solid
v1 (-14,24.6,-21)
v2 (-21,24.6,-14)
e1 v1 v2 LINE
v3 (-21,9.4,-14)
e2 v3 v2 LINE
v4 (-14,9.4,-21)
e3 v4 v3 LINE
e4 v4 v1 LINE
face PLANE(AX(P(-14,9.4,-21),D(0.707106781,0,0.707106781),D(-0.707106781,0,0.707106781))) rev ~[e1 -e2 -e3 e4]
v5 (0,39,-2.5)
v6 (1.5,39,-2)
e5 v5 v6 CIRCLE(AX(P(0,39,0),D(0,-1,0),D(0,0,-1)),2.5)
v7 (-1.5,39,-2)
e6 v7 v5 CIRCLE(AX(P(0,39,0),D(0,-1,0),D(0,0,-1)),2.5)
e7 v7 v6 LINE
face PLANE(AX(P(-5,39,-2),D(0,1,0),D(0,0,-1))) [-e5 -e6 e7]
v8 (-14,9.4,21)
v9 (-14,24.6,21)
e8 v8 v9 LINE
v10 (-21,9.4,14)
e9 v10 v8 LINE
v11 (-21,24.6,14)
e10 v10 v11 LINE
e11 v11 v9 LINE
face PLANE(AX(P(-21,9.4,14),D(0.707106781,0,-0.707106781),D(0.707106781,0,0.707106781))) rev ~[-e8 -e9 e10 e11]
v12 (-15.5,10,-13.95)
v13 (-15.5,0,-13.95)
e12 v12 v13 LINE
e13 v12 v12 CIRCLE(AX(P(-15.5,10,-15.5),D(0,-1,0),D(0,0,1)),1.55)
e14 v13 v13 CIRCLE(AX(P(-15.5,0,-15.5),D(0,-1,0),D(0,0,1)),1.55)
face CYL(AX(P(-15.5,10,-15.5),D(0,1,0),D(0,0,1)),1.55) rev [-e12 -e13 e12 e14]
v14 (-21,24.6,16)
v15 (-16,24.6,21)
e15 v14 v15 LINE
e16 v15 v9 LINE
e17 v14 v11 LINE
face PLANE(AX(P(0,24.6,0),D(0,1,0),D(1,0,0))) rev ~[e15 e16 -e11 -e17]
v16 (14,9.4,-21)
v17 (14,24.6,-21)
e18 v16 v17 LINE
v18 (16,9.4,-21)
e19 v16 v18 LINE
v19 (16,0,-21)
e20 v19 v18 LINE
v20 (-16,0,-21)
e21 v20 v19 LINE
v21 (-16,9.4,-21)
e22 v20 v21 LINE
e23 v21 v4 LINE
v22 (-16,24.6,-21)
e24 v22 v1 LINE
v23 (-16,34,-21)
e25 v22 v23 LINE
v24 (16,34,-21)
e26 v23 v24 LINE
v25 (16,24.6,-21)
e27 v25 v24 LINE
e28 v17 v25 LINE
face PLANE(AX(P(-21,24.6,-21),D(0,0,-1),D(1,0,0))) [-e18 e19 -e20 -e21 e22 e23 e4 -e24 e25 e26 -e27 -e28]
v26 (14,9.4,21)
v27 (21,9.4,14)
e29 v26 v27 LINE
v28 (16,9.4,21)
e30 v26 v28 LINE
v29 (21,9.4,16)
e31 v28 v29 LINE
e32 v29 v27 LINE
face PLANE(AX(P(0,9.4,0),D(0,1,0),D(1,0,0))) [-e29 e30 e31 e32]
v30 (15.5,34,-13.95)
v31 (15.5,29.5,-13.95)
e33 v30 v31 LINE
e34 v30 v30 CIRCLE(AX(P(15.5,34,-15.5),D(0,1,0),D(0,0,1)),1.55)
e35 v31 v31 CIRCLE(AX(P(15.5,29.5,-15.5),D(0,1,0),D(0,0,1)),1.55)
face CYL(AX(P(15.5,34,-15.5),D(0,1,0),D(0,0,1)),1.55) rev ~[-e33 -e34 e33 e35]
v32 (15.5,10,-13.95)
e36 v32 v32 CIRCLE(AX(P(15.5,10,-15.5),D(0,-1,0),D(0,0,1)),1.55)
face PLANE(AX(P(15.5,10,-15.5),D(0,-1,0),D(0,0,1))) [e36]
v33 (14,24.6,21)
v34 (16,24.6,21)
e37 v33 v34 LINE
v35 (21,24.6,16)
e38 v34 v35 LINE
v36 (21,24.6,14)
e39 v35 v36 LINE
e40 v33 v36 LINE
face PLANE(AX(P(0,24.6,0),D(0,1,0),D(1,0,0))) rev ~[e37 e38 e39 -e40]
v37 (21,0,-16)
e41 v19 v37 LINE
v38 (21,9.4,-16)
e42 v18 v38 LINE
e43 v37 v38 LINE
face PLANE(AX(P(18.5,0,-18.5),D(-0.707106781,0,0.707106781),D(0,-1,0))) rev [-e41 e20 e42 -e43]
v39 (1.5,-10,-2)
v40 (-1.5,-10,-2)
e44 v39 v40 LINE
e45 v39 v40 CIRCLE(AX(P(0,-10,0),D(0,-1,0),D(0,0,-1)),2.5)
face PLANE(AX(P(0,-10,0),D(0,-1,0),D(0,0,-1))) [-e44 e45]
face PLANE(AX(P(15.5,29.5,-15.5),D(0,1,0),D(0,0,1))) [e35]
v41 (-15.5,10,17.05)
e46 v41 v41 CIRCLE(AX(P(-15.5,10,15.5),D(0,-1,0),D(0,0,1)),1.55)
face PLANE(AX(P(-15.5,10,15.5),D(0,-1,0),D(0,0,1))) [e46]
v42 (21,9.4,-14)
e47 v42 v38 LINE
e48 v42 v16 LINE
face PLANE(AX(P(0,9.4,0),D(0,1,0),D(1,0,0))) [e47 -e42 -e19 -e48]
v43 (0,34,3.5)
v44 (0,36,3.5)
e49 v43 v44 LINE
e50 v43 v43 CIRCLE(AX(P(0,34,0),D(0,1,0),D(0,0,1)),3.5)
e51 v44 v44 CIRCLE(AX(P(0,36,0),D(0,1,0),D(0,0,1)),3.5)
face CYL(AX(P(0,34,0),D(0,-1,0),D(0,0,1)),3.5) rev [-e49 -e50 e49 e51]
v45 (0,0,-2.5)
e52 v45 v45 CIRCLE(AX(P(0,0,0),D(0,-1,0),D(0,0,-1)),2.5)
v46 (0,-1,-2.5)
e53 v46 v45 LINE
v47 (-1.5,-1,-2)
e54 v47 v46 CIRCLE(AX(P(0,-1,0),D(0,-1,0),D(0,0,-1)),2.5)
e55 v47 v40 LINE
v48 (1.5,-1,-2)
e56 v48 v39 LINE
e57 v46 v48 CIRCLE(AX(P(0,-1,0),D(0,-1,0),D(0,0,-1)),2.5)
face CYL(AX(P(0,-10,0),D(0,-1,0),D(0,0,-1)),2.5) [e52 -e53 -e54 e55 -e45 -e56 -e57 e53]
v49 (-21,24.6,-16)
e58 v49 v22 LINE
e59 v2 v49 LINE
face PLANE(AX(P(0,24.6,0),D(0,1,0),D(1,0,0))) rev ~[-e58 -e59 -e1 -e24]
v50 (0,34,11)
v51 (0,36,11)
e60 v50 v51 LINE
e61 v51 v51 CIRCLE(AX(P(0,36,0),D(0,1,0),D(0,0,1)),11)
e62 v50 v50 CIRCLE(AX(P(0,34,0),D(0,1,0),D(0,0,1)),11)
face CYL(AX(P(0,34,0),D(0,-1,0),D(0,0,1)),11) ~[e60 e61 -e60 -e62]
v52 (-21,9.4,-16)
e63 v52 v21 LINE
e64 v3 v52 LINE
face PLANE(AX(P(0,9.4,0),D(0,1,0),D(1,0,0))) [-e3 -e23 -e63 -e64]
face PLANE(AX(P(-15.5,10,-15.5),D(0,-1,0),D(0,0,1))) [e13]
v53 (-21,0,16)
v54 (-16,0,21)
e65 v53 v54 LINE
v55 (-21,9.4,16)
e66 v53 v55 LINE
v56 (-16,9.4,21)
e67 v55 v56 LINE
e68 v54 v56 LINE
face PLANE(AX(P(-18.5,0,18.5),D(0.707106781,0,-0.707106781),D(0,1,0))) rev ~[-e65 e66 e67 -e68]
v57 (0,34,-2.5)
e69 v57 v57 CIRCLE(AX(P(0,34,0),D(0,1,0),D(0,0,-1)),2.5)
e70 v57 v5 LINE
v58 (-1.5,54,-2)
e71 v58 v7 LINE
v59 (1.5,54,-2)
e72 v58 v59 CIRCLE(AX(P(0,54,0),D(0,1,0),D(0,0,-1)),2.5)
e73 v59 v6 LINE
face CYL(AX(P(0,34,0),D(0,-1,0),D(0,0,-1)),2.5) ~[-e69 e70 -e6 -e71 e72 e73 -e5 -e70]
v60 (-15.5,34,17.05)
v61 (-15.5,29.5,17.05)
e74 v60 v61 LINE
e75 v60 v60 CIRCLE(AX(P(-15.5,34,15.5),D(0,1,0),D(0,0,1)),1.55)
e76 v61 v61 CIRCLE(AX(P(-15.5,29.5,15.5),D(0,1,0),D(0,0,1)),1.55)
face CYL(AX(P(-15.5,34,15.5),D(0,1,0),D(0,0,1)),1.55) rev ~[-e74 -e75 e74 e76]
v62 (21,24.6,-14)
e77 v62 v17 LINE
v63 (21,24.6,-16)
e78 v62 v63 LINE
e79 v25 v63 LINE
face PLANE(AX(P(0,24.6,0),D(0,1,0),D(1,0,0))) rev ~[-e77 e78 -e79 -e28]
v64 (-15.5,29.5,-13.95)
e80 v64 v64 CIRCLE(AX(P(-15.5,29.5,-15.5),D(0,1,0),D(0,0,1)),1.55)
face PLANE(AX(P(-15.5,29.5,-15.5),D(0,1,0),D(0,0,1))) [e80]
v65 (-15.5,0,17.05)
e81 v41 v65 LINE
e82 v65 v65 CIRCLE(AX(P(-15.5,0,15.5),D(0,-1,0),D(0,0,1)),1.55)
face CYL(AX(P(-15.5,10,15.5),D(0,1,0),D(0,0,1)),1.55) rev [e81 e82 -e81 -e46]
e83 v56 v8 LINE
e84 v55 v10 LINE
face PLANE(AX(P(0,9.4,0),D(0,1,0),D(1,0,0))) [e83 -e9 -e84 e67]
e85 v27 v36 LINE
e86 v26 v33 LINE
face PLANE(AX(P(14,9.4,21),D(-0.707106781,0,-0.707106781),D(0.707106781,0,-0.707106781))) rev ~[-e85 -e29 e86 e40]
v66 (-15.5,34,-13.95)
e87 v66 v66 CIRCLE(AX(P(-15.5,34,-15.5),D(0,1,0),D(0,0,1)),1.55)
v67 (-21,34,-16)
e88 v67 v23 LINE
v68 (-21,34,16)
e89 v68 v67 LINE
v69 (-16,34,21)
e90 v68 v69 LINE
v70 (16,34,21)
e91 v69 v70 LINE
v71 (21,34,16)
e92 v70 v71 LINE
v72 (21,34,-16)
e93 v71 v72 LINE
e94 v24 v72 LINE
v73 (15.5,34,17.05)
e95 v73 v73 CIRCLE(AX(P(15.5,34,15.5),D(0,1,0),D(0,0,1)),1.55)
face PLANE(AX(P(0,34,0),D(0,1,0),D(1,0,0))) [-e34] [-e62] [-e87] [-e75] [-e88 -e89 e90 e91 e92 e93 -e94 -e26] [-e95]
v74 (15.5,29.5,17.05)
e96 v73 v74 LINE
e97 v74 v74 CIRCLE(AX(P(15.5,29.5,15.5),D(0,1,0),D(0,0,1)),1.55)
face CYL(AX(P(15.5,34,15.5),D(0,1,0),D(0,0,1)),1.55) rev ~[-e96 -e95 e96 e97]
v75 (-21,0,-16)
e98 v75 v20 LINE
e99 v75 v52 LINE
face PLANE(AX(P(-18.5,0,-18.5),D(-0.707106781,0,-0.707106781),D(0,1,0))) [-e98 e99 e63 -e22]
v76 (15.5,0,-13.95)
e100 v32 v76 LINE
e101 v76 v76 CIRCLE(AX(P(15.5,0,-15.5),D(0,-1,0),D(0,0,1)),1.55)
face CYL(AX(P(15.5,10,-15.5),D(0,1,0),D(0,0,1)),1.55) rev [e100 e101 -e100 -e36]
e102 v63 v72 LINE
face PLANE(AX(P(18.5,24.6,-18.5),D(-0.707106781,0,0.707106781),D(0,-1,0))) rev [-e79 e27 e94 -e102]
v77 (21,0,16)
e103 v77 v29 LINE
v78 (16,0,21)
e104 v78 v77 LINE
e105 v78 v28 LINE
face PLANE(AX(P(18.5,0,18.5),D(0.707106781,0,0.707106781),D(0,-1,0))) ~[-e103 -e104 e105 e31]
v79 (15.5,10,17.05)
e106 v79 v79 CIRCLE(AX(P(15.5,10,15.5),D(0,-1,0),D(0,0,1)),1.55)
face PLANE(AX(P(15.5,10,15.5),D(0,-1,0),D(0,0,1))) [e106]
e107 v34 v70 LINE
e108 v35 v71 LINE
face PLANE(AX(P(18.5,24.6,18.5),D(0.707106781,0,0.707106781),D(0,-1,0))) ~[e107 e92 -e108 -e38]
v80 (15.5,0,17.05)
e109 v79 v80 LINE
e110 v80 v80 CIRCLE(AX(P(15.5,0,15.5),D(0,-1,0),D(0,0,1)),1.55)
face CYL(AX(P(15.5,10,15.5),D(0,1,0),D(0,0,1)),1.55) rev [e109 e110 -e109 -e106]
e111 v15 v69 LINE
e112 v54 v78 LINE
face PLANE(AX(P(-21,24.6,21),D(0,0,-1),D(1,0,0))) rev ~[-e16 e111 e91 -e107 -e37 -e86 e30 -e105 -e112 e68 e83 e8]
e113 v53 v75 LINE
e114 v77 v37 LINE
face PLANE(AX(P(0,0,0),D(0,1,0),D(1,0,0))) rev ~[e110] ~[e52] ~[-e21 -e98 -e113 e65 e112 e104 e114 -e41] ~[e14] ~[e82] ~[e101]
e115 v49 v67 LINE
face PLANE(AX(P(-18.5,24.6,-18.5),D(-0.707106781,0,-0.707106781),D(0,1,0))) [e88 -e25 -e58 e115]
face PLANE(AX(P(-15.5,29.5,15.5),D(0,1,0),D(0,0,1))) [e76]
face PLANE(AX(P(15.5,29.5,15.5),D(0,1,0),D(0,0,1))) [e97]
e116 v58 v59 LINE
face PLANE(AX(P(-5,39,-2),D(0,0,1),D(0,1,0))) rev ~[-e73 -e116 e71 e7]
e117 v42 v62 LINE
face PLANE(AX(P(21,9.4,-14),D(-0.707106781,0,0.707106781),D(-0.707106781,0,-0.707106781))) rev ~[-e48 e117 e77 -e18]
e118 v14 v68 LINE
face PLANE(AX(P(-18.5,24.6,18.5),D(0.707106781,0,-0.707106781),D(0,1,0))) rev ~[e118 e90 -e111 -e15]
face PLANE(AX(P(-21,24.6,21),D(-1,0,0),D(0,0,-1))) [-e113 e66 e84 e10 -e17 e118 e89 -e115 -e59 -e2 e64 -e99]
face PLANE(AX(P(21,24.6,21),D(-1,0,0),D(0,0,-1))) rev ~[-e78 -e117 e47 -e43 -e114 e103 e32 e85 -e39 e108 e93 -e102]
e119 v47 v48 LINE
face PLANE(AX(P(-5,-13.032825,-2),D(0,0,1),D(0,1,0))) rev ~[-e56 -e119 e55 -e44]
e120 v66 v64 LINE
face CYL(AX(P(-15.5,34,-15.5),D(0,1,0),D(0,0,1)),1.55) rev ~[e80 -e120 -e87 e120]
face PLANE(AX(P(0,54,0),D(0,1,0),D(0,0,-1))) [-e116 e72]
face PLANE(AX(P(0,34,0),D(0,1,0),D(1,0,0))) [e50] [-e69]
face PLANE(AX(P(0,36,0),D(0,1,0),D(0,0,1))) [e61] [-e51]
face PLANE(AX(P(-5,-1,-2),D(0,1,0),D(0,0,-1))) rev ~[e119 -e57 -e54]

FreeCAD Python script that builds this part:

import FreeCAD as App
import Part
import Sketcher

V = App.Vector
Q = App.Units.Quantity


def edges_at(feature, points):
    """Names of the edges that pass closest to the given points."""
    edges = feature.Shape.Edges
    near = lambda p: min(range(len(edges)), key=lambda i: edges[i].distToShape(Part.Vertex(*p))[0])
    return sorted({f"Edge{near(p) + 1}" for p in points})


def add_polygon(sketch, points):
    """Adds a closed chain of lines whose ends are joined by coincident constraints."""
    first, n = sketch.GeometryCount, len(points)
    for a, b in zip(points, points[1:] + points[:1]):
        sketch.addGeometry(Part.LineSegment(App.Vector(*a, 0), App.Vector(*b, 0)), False)
    for i in range(n):
        sketch.addConstraint(Sketcher.Constraint("Coincident", first + i, 2, first + (i + 1) % n, 1))

doc = App.newDocument("Part")
body = doc.addObject("PartDesign::Body", "Body")

sketch1 = doc.addObject("Sketcher::SketchObject", "Sketch")
body.addObject(sketch1)
sketch1.AttachmentSupport = (doc.XZ_Plane, [""])
sketch1.MapMode = "FlatFace"
add_polygon(sketch1, [(-21, -21), (-21, 21), (21, 21), (21, -21)])
sketch1.addConstraint([
    Sketcher.Constraint("Vertical", 0),
    Sketcher.Constraint("Horizontal", 1),
    Sketcher.Constraint("Vertical", 2),
    Sketcher.Constraint("Horizontal", 3),
    Sketcher.Constraint("Symmetric", 0, 2, 2, 2, -1, 1),
    Sketcher.Constraint("Equal", 3, 0),
    Sketcher.Constraint("DistanceX", 1, 1, 1, 2, Q("42 mm")),
])
pad1 = doc.addObject("PartDesign::Pad", "Pad")
body.addObject(pad1)
pad1.Profile = sketch1
pad1.Length = 9.4
pad1.Reversed = True

sketch2 = doc.addObject("Sketcher::SketchObject", "Sketch001")
body.addObject(sketch2)
sketch2.AttachmentSupport = (doc.XZ_Plane, [""])
sketch2.MapMode = "FlatFace"
sketch2.AttachmentOffset = App.Placement(V(0, 0, -9.4), App.Rotation())
add_polygon(sketch2, [(-21, 14), (-14, 21), (14, 21), (21, 14), (21, -14), (14, -21), (-14, -21), (-21, -14)])
sketch2.addConstraint([
    Sketcher.Constraint("Horizontal", 1),
    Sketcher.Constraint("Vertical", 3),
    Sketcher.Constraint("Horizontal", 5),
    Sketcher.Constraint("Vertical", 7),
    Sketcher.Constraint("Symmetric", 0, 2, 4, 2, -1, 1),
    Sketcher.Constraint("Symmetric", 2, 2, 6, 2, -1, 1),
    Sketcher.Constraint("Perpendicular", 0, 2),
    Sketcher.Constraint("Perpendicular", 2, 4),
    Sketcher.Constraint("Perpendicular", 4, 6),
    Sketcher.Constraint("Horizontal", 3, 2, 6, 2),
    Sketcher.Constraint("Vertical", 1, 2, 4, 2),
    Sketcher.Constraint("Equal", 5, 3),
    Sketcher.Constraint("DistanceX", 1, 1, 1, 2, Q("28 mm")),
    Sketcher.Constraint("DistanceY", -1, 1, 0, 2, Q("21 mm")),
])
pad2 = doc.addObject("PartDesign::Pad", "Pad001")
body.addObject(pad2)
pad2.Profile = sketch2
pad2.Length = 15.2
pad2.Reversed = True

sketch3 = doc.addObject("Sketcher::SketchObject", "Sketch002")
body.addObject(sketch3)
sketch3.AttachmentSupport = (doc.XZ_Plane, [""])
sketch3.MapMode = "FlatFace"
sketch3.AttachmentOffset = App.Placement(V(0, 0, -24.6), App.Rotation())
add_polygon(sketch3, [(-21, -21), (-21, 21), (21, 21), (21, -21)])
sketch3.addConstraint([
    Sketcher.Constraint("Vertical", 0),
    Sketcher.Constraint("Horizontal", 1),
    Sketcher.Constraint("Vertical", 2),
    Sketcher.Constraint("Horizontal", 3),
    Sketcher.Constraint("Symmetric", 0, 2, 2, 2, -1, 1),
    Sketcher.Constraint("Equal", 3, 0),
    Sketcher.Constraint("DistanceX", 1, 1, 1, 2, Q("42 mm")),
])
pad3 = doc.addObject("PartDesign::Pad", "Pad002")
body.addObject(pad3)
pad3.Profile = sketch3
pad3.Length = 9.4
pad3.Reversed = True
doc.recompute()

chamfer = doc.addObject("PartDesign::Chamfer", "Chamfer")
body.addObject(chamfer)
chamfer.Base = (pad3, edges_at(pad3, [
    (21, 29.3, 21),
    (21, 29.3, -21),
    (-21, 29.3, -21),
    (-21, 29.3, 21),
    (-21, 4.7, 21),
    (-21, 4.7, -21),
    (21, 4.7, -21),
    (21, 4.7, 21),
]))
chamfer.Size = 5

sketch4 = doc.addObject("Sketcher::SketchObject", "Sketch003")
body.addObject(sketch4)
sketch4.AttachmentSupport = (doc.XZ_Plane, [""])
sketch4.MapMode = "FlatFace"
sketch4.AttachmentOffset = App.Placement(V(0, 0, -34), App.Rotation())
sketch4.addGeometry([
    Part.Circle(V(0, 0, 0), V(0, 0, 1), 11),
    Part.Circle(V(0, 0, 0), V(0, 0, 1), 3.5),
], False)
sketch4.addConstraint([
    Sketcher.Constraint("Coincident", 0, 3, -1, 1),
    Sketcher.Constraint("Coincident", 1, 3, -1, 1),
    Sketcher.Constraint("Diameter", 0, Q("22 mm")),
    Sketcher.Constraint("Diameter", 1, Q("7 mm")),
])
pad4 = doc.addObject("PartDesign::Pad", "Pad003")
body.addObject(pad4)
pad4.Profile = sketch4
pad4.Length = 2
pad4.Reversed = True

sketch5 = doc.addObject("Sketcher::SketchObject", "Sketch004")
body.addObject(sketch5)
sketch5.AttachmentSupport = (doc.XZ_Plane, [""])
sketch5.MapMode = "FlatFace"
sketch5.AttachmentOffset = App.Placement(V(0, 0, -34), App.Rotation())
sketch5.addGeometry(Part.Circle(V(0, 0, 0), V(0, 0, 1), 2.5), False)
sketch5.addConstraint([
    Sketcher.Constraint("Coincident", 0, 3, -1, 1),
    Sketcher.Constraint("Diameter", 0, Q("5 mm")),
])
pad5 = doc.addObject("PartDesign::Pad", "Pad004")
body.addObject(pad5)
pad5.Profile = sketch5
pad5.Length = 20
pad5.Reversed = True

sketch6 = doc.addObject("Sketcher::SketchObject", "Sketch005")
body.addObject(sketch6)
sketch6.AttachmentSupport = (doc.XZ_Plane, [""])
sketch6.MapMode = "FlatFace"
sketch6.AttachmentOffset = App.Placement(V(0, 0, -34), App.Rotation())
sketch6.addGeometry([
    Part.Circle(V(15.5, 15.5, 0), V(0, 0, 1), 1.55),
    Part.Circle(V(-15.5, 15.5, 0), V(0, 0, 1), 1.55),
    Part.Circle(V(-15.5, -15.5, 0), V(0, 0, 1), 1.55),
    Part.Circle(V(15.5, -15.5, 0), V(0, 0, 1), 1.55),
], False)
sketch6.addConstraint([
    Sketcher.Constraint("Equal", 0, 1),
    Sketcher.Constraint("Equal", 1, 2),
    Sketcher.Constraint("Equal", 2, 3),
    Sketcher.Constraint("Symmetric", 0, 3, 2, 3, -1, 1),
    Sketcher.Constraint("Symmetric", 1, 3, 3, 3, -1, 1),
    Sketcher.Constraint("Symmetric", 0, 3, 1, 3, -2),
    Sketcher.Constraint("Diameter", 0, Q("3.1 mm")),
    Sketcher.Constraint("DistanceX", 1, 3, 0, 3, Q("31 mm")),
    Sketcher.Constraint("DistanceY", 2, 3, 1, 3, Q("31 mm")),
])
pocket1 = doc.addObject("PartDesign::Pocket", "Pocket")
body.addObject(pocket1)
pocket1.Profile = sketch6
pocket1.Length = 4.5
pocket1.Reversed = True

sketch7 = doc.addObject("Sketcher::SketchObject", "Sketch006")
body.addObject(sketch7)
sketch7.AttachmentSupport = (doc.XZ_Plane, [""])
sketch7.MapMode = "FlatFace"
sketch7.AttachmentOffset = App.Placement(V(0, 0, -10), App.Rotation())
sketch7.addGeometry([
    Part.Circle(V(15.5, 15.5, 0), V(0, 0, 1), 1.55),
    Part.Circle(V(15.5, -15.5, 0), V(0, 0, 1), 1.55),
    Part.Circle(V(-15.5, 15.5, 0), V(0, 0, 1), 1.55),
    Part.Circle(V(-15.5, -15.5, 0), V(0, 0, 1), 1.55),
], False)
sketch7.addConstraint([
    Sketcher.Constraint("Equal", 0, 1),
    Sketcher.Constraint("Equal", 1, 2),
    Sketcher.Constraint("Equal", 2, 3),
    Sketcher.Constraint("Symmetric", 1, 3, 2, 3, -1, 1),
    Sketcher.Constraint("Symmetric", 0, 3, 3, 3, -1, 1),
    Sketcher.Constraint("Symmetric", 0, 3, 2, 3, -2),
    Sketcher.Constraint("Diameter", 0, Q("3.1 mm")),
    Sketcher.Constraint("DistanceY", 1, 3, 0, 3, Q("31 mm")),
    Sketcher.Constraint("DistanceX", 2, 3, 0, 3, Q("31 mm")),
])
pocket2 = doc.addObject("PartDesign::Pocket", "Pocket001")
body.addObject(pocket2)
pocket2.Profile = sketch7
pocket2.Length = 10
pocket2.Reversed = True

sketch8 = doc.addObject("Sketcher::SketchObject", "Sketch007")
body.addObject(sketch8)
sketch8.AttachmentSupport = (doc.XZ_Plane, [""])
sketch8.MapMode = "FlatFace"
sketch8.AttachmentOffset = App.Placement(V(0, 0, 10), App.Rotation())
sketch8.addGeometry(Part.Circle(V(0, 0, 0), V(0, 0, 1), 2.5), False)
sketch8.addConstraint([
    Sketcher.Constraint("Coincident", 0, 3, -1, 1),
    Sketcher.Constraint("Diameter", 0, Q("5 mm")),
])
pad6 = doc.addObject("PartDesign::Pad", "Pad005")
body.addObject(pad6)
pad6.Profile = sketch8
pad6.Length = 10
pad6.Reversed = True

sketch9 = doc.addObject("Sketcher::SketchObject", "Sketch008")
body.addObject(sketch9)
sketch9.AttachmentSupport = (doc.YZ_Plane, [""])
sketch9.MapMode = "FlatFace"
add_polygon(sketch9, [(63.242457, -2), (39, -2), (39, -3.458446), (63.242457, -3.458446)])
add_polygon(sketch9, [(-1, -2), (-13.032825, -2), (-13.032825, -10.851647), (-1, -10.851647)])
sketch9.addConstraint([
    Sketcher.Constraint("Horizontal", 0),
    Sketcher.Constraint("Vertical", 1),
    Sketcher.Constraint("Horizontal", 2),
    Sketcher.Constraint("Vertical", 3),
    Sketcher.Constraint("Horizontal", 4),
    Sketcher.Constraint("Vertical", 5),
    Sketcher.Constraint("Horizontal", 6),
    Sketcher.Constraint("Vertical", 7),
    Sketcher.Constraint("Horizontal", 3, 2, 4, 2),
    Sketcher.Constraint("DistanceX", -1, 1, 0, 2, Q("39 mm")),
    Sketcher.Constraint("DistanceY", 0, 2, -1, 1, Q("2 mm")),
    Sketcher.Constraint("DistanceX", 6, 2, -1, 1, Q("1 mm")),
    Sketcher.Constraint("DistanceY", 5, 2, 1, 2, Q("7.393201 mm")),
    Sketcher.Constraint("DistanceX", 0, 2, 0, 1, Q("24.242457 mm")),
    Sketcher.Constraint("DistanceX", 4, 2, 4, 1, Q("12.032825 mm")),
    Sketcher.Constraint("DistanceY", 1, 2, 1, 1, Q("1.458446 mm")),
])
pocket3 = doc.addObject("PartDesign::Pocket", "Pocket002")
body.addObject(pocket3)
pocket3.Profile = sketch9
pocket3.Type = "ThroughAll"
pocket3.Midplane = True

doc.recompute()
